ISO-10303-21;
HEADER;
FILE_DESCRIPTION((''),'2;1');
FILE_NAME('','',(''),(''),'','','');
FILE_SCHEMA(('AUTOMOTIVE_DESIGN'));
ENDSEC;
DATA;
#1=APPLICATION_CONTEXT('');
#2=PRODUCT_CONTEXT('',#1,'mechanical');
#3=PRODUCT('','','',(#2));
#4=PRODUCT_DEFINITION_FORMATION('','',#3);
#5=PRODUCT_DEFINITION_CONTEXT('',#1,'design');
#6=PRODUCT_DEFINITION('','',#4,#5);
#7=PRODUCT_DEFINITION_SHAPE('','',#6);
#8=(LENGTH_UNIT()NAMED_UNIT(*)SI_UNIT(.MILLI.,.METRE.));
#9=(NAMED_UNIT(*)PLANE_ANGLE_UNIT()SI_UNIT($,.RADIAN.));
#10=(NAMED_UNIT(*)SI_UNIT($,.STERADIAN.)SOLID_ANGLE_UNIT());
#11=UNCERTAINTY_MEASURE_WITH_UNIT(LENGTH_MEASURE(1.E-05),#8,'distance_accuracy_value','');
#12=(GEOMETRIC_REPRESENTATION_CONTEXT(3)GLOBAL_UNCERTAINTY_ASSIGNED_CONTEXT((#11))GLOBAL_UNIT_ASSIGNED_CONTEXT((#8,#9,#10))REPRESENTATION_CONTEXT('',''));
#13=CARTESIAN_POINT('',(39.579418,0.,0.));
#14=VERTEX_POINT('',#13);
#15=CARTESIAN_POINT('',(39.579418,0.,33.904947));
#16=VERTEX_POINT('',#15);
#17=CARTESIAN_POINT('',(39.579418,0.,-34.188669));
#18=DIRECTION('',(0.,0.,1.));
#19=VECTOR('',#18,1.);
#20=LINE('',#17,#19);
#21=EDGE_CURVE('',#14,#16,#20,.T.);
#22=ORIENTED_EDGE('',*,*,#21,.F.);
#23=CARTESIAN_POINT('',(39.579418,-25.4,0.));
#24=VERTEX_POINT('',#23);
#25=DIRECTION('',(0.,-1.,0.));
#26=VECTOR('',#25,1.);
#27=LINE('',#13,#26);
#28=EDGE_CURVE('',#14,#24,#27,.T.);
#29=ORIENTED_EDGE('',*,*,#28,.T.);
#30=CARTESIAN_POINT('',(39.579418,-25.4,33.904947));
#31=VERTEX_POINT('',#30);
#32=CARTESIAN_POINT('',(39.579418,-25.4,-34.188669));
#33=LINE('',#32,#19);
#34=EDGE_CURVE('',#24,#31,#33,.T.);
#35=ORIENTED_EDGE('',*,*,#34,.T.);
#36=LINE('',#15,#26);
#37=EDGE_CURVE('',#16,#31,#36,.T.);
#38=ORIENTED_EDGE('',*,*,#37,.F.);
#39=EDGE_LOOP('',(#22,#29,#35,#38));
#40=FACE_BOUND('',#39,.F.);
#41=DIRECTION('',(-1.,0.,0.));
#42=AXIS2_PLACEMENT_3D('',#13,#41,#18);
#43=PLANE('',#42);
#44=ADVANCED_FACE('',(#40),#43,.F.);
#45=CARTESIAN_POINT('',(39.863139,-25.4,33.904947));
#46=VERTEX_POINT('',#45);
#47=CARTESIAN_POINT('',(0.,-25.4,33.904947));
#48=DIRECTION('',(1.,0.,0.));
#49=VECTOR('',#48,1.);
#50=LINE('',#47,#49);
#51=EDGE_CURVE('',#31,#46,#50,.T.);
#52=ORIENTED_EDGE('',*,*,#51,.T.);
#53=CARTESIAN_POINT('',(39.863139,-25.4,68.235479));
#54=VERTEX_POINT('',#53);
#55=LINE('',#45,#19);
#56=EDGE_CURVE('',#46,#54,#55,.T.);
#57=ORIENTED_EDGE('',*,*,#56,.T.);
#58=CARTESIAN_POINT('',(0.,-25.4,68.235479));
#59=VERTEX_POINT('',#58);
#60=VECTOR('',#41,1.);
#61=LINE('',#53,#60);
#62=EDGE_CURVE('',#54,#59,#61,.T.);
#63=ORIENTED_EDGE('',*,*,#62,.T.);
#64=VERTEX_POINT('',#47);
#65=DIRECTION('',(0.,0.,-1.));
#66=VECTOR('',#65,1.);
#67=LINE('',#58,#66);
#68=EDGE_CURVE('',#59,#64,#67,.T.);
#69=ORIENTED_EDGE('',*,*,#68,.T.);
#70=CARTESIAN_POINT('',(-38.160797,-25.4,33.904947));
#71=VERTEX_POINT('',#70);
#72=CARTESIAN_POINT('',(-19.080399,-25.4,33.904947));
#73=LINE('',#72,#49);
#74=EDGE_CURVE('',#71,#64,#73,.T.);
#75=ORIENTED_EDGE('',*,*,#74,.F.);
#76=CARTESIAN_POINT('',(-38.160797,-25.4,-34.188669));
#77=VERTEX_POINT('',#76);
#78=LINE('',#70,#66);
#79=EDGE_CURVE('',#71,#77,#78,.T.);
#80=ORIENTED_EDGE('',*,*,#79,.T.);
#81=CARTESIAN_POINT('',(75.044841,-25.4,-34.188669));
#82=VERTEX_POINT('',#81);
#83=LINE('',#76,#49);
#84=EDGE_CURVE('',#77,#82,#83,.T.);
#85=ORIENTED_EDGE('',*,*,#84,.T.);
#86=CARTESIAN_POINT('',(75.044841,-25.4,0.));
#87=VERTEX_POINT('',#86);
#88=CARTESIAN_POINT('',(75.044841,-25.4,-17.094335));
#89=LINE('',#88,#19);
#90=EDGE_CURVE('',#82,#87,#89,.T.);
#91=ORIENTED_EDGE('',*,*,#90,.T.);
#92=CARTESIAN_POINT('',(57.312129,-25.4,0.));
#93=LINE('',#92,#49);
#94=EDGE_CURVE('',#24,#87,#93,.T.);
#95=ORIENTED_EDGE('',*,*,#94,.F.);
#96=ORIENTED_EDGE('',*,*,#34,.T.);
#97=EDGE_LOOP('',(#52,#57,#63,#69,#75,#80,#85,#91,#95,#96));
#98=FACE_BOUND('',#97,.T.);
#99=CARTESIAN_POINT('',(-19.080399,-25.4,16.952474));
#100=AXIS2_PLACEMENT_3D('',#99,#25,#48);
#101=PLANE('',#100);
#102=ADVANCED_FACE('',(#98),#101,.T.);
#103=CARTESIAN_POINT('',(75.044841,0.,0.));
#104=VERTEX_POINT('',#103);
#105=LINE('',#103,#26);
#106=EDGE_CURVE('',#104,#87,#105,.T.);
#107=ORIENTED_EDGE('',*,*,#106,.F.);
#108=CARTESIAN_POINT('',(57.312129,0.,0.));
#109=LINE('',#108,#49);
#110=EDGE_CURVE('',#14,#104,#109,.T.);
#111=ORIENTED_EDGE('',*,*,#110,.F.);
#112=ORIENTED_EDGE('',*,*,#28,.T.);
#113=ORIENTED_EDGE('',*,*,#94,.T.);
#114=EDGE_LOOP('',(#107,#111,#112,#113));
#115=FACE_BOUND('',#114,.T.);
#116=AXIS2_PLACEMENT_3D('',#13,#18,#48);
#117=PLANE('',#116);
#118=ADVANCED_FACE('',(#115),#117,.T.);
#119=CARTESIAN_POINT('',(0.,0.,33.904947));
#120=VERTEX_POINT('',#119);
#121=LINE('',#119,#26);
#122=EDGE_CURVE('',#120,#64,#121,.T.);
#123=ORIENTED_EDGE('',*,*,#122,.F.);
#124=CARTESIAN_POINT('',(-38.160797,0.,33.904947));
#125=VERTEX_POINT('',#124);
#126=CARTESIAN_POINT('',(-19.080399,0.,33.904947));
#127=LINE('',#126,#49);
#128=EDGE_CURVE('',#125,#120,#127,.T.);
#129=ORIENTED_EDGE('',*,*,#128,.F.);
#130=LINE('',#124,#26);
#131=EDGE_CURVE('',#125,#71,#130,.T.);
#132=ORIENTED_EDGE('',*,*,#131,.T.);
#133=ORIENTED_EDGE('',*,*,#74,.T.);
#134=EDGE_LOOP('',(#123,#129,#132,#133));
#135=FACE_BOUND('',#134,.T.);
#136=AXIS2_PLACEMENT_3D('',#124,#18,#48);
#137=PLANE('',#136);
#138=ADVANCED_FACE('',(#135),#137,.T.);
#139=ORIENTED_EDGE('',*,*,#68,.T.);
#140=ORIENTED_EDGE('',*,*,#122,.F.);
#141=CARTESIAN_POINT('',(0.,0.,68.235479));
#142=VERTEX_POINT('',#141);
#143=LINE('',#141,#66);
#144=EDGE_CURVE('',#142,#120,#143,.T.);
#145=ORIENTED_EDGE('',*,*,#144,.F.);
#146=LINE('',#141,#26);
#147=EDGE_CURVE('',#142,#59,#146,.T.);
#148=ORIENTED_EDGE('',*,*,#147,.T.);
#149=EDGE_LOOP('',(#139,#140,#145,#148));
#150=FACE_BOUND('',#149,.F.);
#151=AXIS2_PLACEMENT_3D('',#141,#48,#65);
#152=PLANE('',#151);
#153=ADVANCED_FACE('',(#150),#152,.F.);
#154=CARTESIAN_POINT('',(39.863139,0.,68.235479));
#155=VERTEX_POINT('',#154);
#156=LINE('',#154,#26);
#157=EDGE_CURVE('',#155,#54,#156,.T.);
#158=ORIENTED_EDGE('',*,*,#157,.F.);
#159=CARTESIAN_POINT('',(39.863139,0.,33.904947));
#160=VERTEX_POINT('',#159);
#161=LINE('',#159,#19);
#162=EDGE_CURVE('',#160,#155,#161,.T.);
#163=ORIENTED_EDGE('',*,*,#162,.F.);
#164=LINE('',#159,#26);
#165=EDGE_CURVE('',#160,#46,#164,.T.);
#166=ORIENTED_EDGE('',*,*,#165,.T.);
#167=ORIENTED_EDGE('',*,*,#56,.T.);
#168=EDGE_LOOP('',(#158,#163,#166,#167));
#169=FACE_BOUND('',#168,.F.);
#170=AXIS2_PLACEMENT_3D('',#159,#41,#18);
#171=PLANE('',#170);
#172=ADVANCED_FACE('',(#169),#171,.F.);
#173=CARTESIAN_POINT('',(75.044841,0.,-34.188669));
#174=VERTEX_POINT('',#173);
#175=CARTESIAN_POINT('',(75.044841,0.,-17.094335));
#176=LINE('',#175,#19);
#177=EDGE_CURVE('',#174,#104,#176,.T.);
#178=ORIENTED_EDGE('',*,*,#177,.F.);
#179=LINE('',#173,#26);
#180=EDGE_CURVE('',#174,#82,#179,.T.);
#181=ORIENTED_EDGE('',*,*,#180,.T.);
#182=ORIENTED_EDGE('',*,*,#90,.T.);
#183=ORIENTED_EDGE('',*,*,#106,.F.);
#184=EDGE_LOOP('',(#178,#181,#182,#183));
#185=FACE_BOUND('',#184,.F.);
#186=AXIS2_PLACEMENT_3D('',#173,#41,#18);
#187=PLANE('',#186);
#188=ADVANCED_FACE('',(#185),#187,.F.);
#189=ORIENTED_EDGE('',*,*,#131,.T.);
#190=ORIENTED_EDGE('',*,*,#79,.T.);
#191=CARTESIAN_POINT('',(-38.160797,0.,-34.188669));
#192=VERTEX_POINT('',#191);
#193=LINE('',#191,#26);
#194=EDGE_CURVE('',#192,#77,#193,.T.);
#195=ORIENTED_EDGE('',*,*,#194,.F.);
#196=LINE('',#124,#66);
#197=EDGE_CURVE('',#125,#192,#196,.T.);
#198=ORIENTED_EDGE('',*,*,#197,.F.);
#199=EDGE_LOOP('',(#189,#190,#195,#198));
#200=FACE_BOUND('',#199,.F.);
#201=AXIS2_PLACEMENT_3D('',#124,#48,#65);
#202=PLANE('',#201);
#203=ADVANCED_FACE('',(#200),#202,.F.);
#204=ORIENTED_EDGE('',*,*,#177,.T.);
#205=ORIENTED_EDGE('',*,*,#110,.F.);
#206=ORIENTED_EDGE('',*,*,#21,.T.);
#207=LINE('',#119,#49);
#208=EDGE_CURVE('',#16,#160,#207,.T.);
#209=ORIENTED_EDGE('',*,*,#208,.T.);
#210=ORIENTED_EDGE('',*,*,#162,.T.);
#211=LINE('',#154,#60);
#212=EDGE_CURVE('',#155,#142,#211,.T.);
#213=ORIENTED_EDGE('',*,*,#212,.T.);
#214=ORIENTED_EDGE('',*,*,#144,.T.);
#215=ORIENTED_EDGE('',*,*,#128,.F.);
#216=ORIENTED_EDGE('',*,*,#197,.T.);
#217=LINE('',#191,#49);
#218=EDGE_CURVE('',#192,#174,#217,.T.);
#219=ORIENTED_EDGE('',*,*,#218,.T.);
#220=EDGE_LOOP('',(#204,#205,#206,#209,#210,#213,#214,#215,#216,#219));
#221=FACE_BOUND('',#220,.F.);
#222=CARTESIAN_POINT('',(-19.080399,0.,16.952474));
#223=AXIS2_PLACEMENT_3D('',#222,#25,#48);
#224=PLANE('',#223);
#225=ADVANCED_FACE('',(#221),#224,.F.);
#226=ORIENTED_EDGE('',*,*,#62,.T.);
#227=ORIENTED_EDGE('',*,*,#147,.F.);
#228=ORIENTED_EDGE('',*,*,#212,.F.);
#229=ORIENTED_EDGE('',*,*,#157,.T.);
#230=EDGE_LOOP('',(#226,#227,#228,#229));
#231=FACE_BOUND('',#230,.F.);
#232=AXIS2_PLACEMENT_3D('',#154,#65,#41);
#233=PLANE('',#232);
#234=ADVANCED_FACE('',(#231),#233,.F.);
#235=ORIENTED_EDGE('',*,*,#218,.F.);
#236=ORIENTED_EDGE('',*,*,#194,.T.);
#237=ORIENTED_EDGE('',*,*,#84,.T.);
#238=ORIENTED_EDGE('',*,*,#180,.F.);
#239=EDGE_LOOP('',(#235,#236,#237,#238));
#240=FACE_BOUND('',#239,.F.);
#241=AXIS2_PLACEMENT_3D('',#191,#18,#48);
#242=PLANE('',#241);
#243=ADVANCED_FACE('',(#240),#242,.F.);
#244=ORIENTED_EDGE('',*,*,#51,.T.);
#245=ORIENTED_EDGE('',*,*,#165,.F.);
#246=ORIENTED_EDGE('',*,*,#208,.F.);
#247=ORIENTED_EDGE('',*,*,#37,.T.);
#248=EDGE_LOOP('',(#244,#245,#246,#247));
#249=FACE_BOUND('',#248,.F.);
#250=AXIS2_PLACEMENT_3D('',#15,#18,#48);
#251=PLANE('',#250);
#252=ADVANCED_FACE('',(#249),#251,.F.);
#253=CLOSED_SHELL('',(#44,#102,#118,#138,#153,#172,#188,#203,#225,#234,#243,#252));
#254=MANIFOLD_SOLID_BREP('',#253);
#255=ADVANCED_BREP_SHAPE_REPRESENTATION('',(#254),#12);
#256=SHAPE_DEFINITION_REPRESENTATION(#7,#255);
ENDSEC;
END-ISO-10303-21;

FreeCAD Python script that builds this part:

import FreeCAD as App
import Part
import Sketcher
Q = App.Units.Quantity

doc = App.newDocument("Part")
body = doc.addObject("PartDesign::Body", "Body")

sketch1 = body.newObject("Sketcher::SketchObject", "Sketch")
sketch1.AttachmentSupport = (doc.getObject("XZ_Plane"), [""])
sketch1.MapMode = "FlatFace"
sketch1.addGeometry([
    Part.LineSegment(App.Vector(-38.16, 33.9, 0), App.Vector(-38.16, -34.19, 0)),
    Part.LineSegment(App.Vector(-38.16, -34.19, 0), App.Vector(75.04, -34.19, 0)),
    Part.LineSegment(App.Vector(75.04, -34.19, 0), App.Vector(75.04, 0, 0)),
    Part.LineSegment(App.Vector(75.04, 0, 0), App.Vector(39.58, 0, 0)),
    Part.LineSegment(App.Vector(39.58, 0, 0), App.Vector(39.58, 33.9, 0)),
    Part.LineSegment(App.Vector(39.58, 33.9, 0), App.Vector(39.86, 33.9, 0)),
    Part.LineSegment(App.Vector(39.86, 33.9, 0), App.Vector(39.86, 68.24, 0)),
    Part.LineSegment(App.Vector(39.86, 68.24, 0), App.Vector(0, 68.24, 0)),
    Part.LineSegment(App.Vector(0, 68.24, 0), App.Vector(0, 33.9, 0)),
    Part.LineSegment(App.Vector(0, 33.9, 0), App.Vector(-38.16, 33.9, 0)),
], False)
sketch1.addConstraint([
    Sketcher.Constraint("Coincident", 0, 2, 1, 1),
    Sketcher.Constraint("Coincident", 1, 2, 2, 1),
    Sketcher.Constraint("Coincident", 2, 2, 3, 1),
    Sketcher.Constraint("Coincident", 3, 2, 4, 1),
    Sketcher.Constraint("Coincident", 4, 2, 5, 1),
    Sketcher.Constraint("Coincident", 5, 2, 6, 1),
    Sketcher.Constraint("Coincident", 6, 2, 7, 1),
    Sketcher.Constraint("Coincident", 7, 2, 8, 1),
    Sketcher.Constraint("Coincident", 8, 2, 9, 1),
    Sketcher.Constraint("Coincident", 9, 2, 0, 1),
    Sketcher.Constraint("Vertical", 0),
    Sketcher.Constraint("Horizontal", 1),
    Sketcher.Constraint("Vertical", 2),
    Sketcher.Constraint("Horizontal", 3),
    Sketcher.Constraint("Vertical", 4),
    Sketcher.Constraint("Horizontal", 5),
    Sketcher.Constraint("Vertical", 6),
    Sketcher.Constraint("Horizontal", 7),
    Sketcher.Constraint("Vertical", 8),
    Sketcher.Constraint("Horizontal", 9),
    Sketcher.Constraint("PointOnObject", 2, 2, -1),
    Sketcher.Constraint("PointOnObject", 7, 2, -2),
    Sketcher.Constraint("Horizontal", 5, 2, 8, 2),
    Sketcher.Constraint("DistanceX", 5, 1, 5, 2, 0.283722),
    Sketcher.Constraint("DistanceX", 7, 2, 7, 1, 39.863139),
    Sketcher.Constraint("DistanceY", 2, 1, 2, 2, 34.188669),
    Sketcher.Constraint("DistanceY", 6, 1, 6, 2, 34.330532),
    Sketcher.Constraint("DistanceX", 5, 2, 2, 2, 35.181701),
    Sketcher.Constraint("DistanceX", 1, 1, 1, 2, 113.205638),
    Sketcher.Constraint("DistanceY", 0, 2, 0, 1, 68.093617),
])
pad1 = body.newObject("PartDesign::Pad", "Pad")
pad1.Profile = sketch1
pad1.Length = Q("1 in")

doc.recompute()
